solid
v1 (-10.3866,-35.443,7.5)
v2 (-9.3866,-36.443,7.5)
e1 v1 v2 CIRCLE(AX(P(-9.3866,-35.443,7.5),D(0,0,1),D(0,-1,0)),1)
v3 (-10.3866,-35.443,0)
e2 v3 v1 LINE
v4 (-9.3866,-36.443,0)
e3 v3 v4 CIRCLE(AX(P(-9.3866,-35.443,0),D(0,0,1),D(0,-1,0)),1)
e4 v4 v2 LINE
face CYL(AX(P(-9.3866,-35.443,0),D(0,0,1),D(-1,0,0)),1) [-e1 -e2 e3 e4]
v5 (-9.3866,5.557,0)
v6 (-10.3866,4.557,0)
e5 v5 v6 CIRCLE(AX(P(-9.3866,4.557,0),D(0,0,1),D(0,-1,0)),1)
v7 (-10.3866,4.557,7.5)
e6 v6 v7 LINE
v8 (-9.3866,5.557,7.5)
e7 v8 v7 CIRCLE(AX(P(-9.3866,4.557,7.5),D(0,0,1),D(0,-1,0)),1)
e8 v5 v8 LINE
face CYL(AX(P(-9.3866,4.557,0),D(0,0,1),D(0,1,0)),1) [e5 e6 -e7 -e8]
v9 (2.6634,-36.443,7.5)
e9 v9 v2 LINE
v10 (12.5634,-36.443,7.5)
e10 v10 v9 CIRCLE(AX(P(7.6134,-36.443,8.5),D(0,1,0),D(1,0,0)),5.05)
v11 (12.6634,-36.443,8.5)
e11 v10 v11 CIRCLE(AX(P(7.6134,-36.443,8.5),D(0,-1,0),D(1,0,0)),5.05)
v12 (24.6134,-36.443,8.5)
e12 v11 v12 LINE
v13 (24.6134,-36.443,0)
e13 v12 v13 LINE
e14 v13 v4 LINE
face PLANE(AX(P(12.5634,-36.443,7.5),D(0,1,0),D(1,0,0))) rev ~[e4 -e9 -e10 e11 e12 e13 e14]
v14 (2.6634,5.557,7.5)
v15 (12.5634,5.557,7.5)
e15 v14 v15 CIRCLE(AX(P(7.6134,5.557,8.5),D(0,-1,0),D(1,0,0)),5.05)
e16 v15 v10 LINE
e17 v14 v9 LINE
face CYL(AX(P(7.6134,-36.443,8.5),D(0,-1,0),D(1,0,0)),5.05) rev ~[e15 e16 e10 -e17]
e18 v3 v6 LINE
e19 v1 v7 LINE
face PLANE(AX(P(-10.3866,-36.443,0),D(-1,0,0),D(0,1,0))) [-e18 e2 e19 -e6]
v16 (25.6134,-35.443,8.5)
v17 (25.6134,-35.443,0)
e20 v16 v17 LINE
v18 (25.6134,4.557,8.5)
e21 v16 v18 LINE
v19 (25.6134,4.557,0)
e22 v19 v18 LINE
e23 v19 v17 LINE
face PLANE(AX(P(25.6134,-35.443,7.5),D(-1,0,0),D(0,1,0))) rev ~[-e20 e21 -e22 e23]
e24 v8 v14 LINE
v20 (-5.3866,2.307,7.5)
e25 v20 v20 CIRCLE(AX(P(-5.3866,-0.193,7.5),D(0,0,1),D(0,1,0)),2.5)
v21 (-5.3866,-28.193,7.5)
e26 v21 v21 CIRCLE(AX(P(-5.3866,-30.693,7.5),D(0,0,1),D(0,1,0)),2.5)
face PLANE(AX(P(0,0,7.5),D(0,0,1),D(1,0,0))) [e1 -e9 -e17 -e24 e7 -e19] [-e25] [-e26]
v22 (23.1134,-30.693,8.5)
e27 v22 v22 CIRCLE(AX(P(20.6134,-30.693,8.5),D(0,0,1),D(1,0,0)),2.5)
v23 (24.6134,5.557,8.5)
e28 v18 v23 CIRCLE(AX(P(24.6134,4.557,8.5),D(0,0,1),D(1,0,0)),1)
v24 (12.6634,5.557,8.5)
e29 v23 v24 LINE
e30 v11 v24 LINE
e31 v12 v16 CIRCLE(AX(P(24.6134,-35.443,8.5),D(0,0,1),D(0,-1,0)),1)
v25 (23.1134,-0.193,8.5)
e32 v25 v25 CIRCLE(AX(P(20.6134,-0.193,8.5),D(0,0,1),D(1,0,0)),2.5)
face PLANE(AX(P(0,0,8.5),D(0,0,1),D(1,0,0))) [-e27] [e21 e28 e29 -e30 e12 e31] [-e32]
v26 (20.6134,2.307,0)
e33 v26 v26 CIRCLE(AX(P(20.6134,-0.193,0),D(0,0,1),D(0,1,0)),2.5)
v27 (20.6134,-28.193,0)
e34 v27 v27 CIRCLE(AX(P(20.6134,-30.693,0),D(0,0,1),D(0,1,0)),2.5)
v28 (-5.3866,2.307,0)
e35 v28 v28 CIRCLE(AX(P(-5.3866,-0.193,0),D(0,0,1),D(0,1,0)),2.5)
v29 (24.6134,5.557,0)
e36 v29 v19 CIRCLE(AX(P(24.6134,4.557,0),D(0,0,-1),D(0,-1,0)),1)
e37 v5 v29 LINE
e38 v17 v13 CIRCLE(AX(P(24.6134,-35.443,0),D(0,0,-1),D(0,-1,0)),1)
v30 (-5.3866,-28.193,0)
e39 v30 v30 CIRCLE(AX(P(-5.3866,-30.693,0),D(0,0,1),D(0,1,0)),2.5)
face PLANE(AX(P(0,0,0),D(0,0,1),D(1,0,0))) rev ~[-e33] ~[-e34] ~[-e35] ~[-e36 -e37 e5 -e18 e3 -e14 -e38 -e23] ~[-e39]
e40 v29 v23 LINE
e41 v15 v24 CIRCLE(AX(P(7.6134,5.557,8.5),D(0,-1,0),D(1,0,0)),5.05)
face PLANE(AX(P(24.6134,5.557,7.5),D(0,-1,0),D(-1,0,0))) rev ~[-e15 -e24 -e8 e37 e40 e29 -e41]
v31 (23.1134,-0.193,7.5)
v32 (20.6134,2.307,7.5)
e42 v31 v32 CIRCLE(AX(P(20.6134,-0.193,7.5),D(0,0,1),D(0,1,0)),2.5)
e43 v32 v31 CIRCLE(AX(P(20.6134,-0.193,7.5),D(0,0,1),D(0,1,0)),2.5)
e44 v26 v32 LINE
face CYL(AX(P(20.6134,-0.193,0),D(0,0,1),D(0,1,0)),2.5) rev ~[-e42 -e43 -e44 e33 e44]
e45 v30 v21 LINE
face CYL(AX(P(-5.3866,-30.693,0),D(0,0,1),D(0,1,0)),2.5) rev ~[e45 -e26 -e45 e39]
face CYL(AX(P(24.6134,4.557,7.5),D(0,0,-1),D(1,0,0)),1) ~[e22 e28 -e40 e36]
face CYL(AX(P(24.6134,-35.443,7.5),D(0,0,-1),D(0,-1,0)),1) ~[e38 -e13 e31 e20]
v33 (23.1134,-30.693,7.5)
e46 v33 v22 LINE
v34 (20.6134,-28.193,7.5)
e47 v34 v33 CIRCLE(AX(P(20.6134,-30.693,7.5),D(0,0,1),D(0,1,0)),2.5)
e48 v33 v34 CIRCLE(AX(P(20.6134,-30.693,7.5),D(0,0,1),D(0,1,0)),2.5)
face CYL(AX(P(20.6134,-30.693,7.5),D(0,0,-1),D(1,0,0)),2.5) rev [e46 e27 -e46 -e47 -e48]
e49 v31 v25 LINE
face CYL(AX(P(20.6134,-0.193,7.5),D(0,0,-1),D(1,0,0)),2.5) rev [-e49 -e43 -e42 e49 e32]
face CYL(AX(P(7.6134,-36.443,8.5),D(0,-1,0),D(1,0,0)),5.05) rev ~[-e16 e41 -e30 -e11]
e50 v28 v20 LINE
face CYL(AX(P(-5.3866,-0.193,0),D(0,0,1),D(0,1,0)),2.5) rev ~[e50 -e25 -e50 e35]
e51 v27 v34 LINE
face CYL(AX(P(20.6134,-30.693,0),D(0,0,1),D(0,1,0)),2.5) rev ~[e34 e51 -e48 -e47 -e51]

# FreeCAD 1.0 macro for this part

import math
import FreeCAD as App
import Part
import Sketcher
from FreeCAD import Vector
Q = App.Units.Quantity


def edges_at(feature, points):
    """Names of the edges that pass closest to the given points."""
    edges = feature.Shape.Edges
    near = lambda p: min(range(len(edges)), key=lambda i: edges[i].distToShape(Part.Vertex(*p))[0])
    return sorted({f"Edge{near(p) + 1}" for p in points})

doc = App.newDocument("Part")
params = doc.addObject("Spreadsheet::Sheet", "Params")
for row, (alias, value) in enumerate([
    ("sketch1_width", "36 mm"),
    ("sketch1_height", "42 mm"),
    ("pad1_length", "7.5 mm"),
    ("sketch2_diameter", "5 mm"),
    ("hole_diameter", "5 mm"),
    ("sketch3_diameter", "10.1 mm"),
    ("fillet_radius", "1 mm"),
    ("sketch4_diameter", "5 mm"),
    ("sketch4_radius", "1 mm"),
    ("sketch4_height", "40 mm"),
    ("sketch4_width", "12.05 mm"),
    ("pad2_length", "1 mm"),
    ("sketch5_diameter", "10.1 mm"),
], start=1):
    params.set(f"A{row}", alias)
    params.set(f"B{row}", "=" + value)
    params.setAlias(f"B{row}", alias)

body = doc.addObject("PartDesign::Body", "Body")

# Sketch on XY plane
sketch1 = body.newObject("Sketcher::SketchObject", "Sketch")
sketch1.AttachmentSupport = (doc.getObject("XY_Plane"), [""])
sketch1.MapMode = "FlatFace"
sketch1.addGeometry([
    Part.LineSegment(Vector(26, 6, 0), Vector(-10, 6, 0)),
    Part.LineSegment(Vector(-10, 6, 0), Vector(-10, -36, 0)),
    Part.LineSegment(Vector(-10, -36, 0), Vector(26, -36, 0)),
    Part.LineSegment(Vector(26, -36, 0), Vector(26, 6, 0)),
], False)
sketch1.addConstraint([
    Sketcher.Constraint("Coincident", 0, 2, 1, 1),
    Sketcher.Constraint("Coincident", 1, 2, 2, 1),
    Sketcher.Constraint("Coincident", 2, 2, 3, 1),
    Sketcher.Constraint("Coincident", 3, 2, 0, 1),
    Sketcher.Constraint("Horizontal", 0),
    Sketcher.Constraint("Vertical", 1),
    Sketcher.Constraint("Horizontal", 2),
    Sketcher.Constraint("Vertical", 3),
    Sketcher.Constraint("DistanceX", 0, 2, 0, 1, Q("36 mm")),
    Sketcher.Constraint("DistanceY", 1, 2, 1, 1, Q("42 mm")),
    Sketcher.Constraint("DistanceY", -1, 1, 0, 2, Q("5.557 mm")),
    Sketcher.Constraint("DistanceX", 0, 2, -1, 1, Q("10.3866 mm")),
])
sketch1.setExpression("Constraints[8]", "Params.sketch1_width")
sketch1.setExpression("Constraints[9]", "Params.sketch1_height")
pad1 = body.newObject("PartDesign::Pad", "Pad")
pad1.Profile = sketch1
pad1.setExpression("Length", "Params.pad1_length")

# Sketch on XY plane
sketch2 = body.newObject("Sketcher::SketchObject", "Sketch001")
sketch2.AttachmentSupport = (doc.getObject("XY_Plane"), [""])
sketch2.MapMode = "FlatFace"
sketch2.addGeometry([
    Part.Circle(Vector(20.6, -0.2, 0), Vector(0, 0, 1), 2.5),
    Part.Circle(Vector(20.6, -30.7, 0), Vector(0, 0, 1), 2.5),
    Part.Circle(Vector(-5.4, -0.2, 0), Vector(0, 0, 1), 2.5),
    Part.Circle(Vector(-5.4, -30.7, 0), Vector(0, 0, 1), 2.5),
], False)
sketch2.addConstraint([
    Sketcher.Constraint("Equal", 0, 1),
    Sketcher.Constraint("Equal", 1, 2),
    Sketcher.Constraint("Equal", 2, 3),
    Sketcher.Constraint("Horizontal", 0, 3, 2, 3),
    Sketcher.Constraint("Horizontal", 1, 3, 3, 3),
    Sketcher.Constraint("Vertical", 0, 3, 1, 3),
    Sketcher.Constraint("Vertical", 2, 3, 3, 3),
    Sketcher.Constraint("Diameter", 0, Q("5 mm")),
    Sketcher.Constraint("DistanceX", 2, 3, 0, 3, Q("26 mm")),
    Sketcher.Constraint("DistanceY", 1, 3, 0, 3, Q("30.5 mm")),
    Sketcher.Constraint("DistanceY", 0, 3, -1, 1, Q("0.193 mm")),
    Sketcher.Constraint("DistanceX", -1, 1, 0, 3, Q("20.6134 mm")),
])
sketch2.setExpression("Constraints[7]", "Params.sketch2_diameter")
doc.recompute()
hole = body.newObject("PartDesign::Hole", "Hole")
hole.Profile = sketch2
hole.ThreadType = "None"
hole.setExpression("Diameter", "Params.hole_diameter")
hole.DepthType = "ThroughAll"
hole.Reversed = True

# Sketch on XZ plane
sketch3 = body.newObject("Sketcher::SketchObject", "Sketch002")
sketch3.AttachmentSupport = (doc.getObject("XZ_Plane"), [""])
sketch3.MapMode = "FlatFace"
sketch3.AttachmentOffset = App.Placement(Vector(0, 0, 36.443), App.Rotation())
sketch3.addGeometry(Part.Circle(Vector(8, 8, 0), Vector(0, 0, 1), 5), False)
sketch3.addConstraint([
    Sketcher.Constraint("Diameter", 0, Q("10.1 mm")),
    Sketcher.Constraint("DistanceY", -1, 1, 0, 3, Q("8.5 mm")),
    Sketcher.Constraint("DistanceX", -1, 1, 0, 3, Q("7.6134 mm")),
])
sketch3.setExpression("Constraints[0]", "Params.sketch3_diameter")
pocket1 = body.newObject("PartDesign::Pocket", "Pocket")
pocket1.Profile = sketch3
pocket1.Type = "ThroughAll"
doc.recompute()

fillet = body.newObject("PartDesign::Fillet", "Fillet")
fillet.Base = (pocket1, edges_at(pocket1, [
    (-10.387, -36.443, 3.75),
    (-10.387, 5.557, 3.75),
    (25.613, -36.443, 3.75),
    (25.613, 5.557, 3.75),
]))
fillet.setExpression("Radius", "Params.fillet_radius")

# Sketch on XY plane
sketch4 = body.newObject("Sketcher::SketchObject", "Sketch003")
sketch4.AttachmentSupport = (doc.getObject("XY_Plane"), [""])
sketch4.MapMode = "FlatFace"
sketch4.AttachmentOffset = App.Placement(Vector(0, 0, 7.5), App.Rotation())
sketch4.addGeometry([
    Part.LineSegment(Vector(25.6, -35.4, 0), Vector(25.6, 4.6, 0)),  # 0
    Part.ArcOfCircle(Part.Circle(Vector(24.6, 4.6, 0), Vector(0, 0, 1), 1), math.radians(0), math.radians(90)),  # 1
    Part.LineSegment(Vector(24.6, 5.6, 0), Vector(12.6, 5.6, 0)),  # 2
    Part.LineSegment(Vector(12.6, 5.6, 0), Vector(12.6, -36.4, 0)),  # 3
    Part.LineSegment(Vector(12.6, -36.4, 0), Vector(24.6, -36.4, 0)),  # 4
    Part.ArcOfCircle(Part.Circle(Vector(24.6, -35.4, 0), Vector(0, 0, 1), 1), math.radians(-90), math.radians(0)),  # 5
    Part.Circle(Vector(20.6, -30.7, 0), Vector(0, 0, 1), 2.5),  # 6
    Part.Circle(Vector(20.6, -0.2, 0), Vector(0, 0, 1), 2.5),  # 7
], False)
sketch4.addConstraint([
    Sketcher.Constraint("Tangent", 0, 2, 1, 1),
    Sketcher.Constraint("Tangent", 1, 2, 2, 1),
    Sketcher.Constraint("Coincident", 2, 2, 3, 1),
    Sketcher.Constraint("Coincident", 3, 2, 4, 1),
    Sketcher.Constraint("Tangent", 4, 2, 5, 1),
    Sketcher.Constraint("Tangent", 5, 2, 0, 1),
    Sketcher.Constraint("Vertical", 0),
    Sketcher.Constraint("Horizontal", 2),
    Sketcher.Constraint("Vertical", 3),
    Sketcher.Constraint("Horizontal", 4),
    Sketcher.Constraint("Equal", 1, 5),
    Sketcher.Constraint("Equal", 6, 7),
    Sketcher.Constraint("Vertical", 6, 3, 7, 3),
    Sketcher.Constraint("Diameter", 6, Q("5 mm")),
    Sketcher.Constraint("Radius", 1, Q("1 mm")),
    Sketcher.Constraint("DistanceY", 0, 1, 0, 2, Q("40 mm")),
    Sketcher.Constraint("DistanceX", 6, 3, 5, 3, Q("4 mm")),
    Sketcher.Constraint("DistanceX", 2, 2, 2, 1, Q("12.05 mm")),
    Sketcher.Constraint("DistanceY", 6, 3, 7, 3, Q("30.5 mm")),
    Sketcher.Constraint("DistanceY", 5, 3, 6, 3, Q("4.75 mm")),
    Sketcher.Constraint("DistanceY", -1, 1, 1, 3, Q("4.557 mm")),
    Sketcher.Constraint("DistanceX", -1, 1, 1, 3, Q("24.6134 mm")),
])
sketch4.setExpression("Constraints[13]", "Params.sketch4_diameter")
sketch4.setExpression("Constraints[14]", "Params.sketch4_radius")
sketch4.setExpression("Constraints[15]", "Params.sketch4_height")
sketch4.setExpression("Constraints[17]", "Params.sketch4_width")
pad2 = body.newObject("PartDesign::Pad", "Pad001")
pad2.Profile = sketch4
pad2.setExpression("Length", "Params.pad2_length")

# Sketch on XZ plane
sketch5 = body.newObject("Sketcher::SketchObject", "Sketch004")
sketch5.AttachmentSupport = (doc.getObject("XZ_Plane"), [""])
sketch5.MapMode = "FlatFace"
sketch5.AttachmentOffset = App.Placement(Vector(0, 0, 36.443), App.Rotation())
sketch5.addGeometry(Part.Circle(Vector(8, 8, 0), Vector(0, 0, 1), 5), False)
sketch5.addConstraint([
    Sketcher.Constraint("Diameter", 0, Q("10.1 mm")),
    Sketcher.Constraint("DistanceY", -1, 1, 0, 3, Q("8.5 mm")),
    Sketcher.Constraint("DistanceX", -1, 1, 0, 3, Q("7.6134 mm")),
])
sketch5.setExpression("Constraints[0]", "Params.sketch5_diameter")
pocket2 = body.newObject("PartDesign::Pocket", "Pocket001")
pocket2.Profile = sketch5
pocket2.Type = "ThroughAll"

doc.recompute()
